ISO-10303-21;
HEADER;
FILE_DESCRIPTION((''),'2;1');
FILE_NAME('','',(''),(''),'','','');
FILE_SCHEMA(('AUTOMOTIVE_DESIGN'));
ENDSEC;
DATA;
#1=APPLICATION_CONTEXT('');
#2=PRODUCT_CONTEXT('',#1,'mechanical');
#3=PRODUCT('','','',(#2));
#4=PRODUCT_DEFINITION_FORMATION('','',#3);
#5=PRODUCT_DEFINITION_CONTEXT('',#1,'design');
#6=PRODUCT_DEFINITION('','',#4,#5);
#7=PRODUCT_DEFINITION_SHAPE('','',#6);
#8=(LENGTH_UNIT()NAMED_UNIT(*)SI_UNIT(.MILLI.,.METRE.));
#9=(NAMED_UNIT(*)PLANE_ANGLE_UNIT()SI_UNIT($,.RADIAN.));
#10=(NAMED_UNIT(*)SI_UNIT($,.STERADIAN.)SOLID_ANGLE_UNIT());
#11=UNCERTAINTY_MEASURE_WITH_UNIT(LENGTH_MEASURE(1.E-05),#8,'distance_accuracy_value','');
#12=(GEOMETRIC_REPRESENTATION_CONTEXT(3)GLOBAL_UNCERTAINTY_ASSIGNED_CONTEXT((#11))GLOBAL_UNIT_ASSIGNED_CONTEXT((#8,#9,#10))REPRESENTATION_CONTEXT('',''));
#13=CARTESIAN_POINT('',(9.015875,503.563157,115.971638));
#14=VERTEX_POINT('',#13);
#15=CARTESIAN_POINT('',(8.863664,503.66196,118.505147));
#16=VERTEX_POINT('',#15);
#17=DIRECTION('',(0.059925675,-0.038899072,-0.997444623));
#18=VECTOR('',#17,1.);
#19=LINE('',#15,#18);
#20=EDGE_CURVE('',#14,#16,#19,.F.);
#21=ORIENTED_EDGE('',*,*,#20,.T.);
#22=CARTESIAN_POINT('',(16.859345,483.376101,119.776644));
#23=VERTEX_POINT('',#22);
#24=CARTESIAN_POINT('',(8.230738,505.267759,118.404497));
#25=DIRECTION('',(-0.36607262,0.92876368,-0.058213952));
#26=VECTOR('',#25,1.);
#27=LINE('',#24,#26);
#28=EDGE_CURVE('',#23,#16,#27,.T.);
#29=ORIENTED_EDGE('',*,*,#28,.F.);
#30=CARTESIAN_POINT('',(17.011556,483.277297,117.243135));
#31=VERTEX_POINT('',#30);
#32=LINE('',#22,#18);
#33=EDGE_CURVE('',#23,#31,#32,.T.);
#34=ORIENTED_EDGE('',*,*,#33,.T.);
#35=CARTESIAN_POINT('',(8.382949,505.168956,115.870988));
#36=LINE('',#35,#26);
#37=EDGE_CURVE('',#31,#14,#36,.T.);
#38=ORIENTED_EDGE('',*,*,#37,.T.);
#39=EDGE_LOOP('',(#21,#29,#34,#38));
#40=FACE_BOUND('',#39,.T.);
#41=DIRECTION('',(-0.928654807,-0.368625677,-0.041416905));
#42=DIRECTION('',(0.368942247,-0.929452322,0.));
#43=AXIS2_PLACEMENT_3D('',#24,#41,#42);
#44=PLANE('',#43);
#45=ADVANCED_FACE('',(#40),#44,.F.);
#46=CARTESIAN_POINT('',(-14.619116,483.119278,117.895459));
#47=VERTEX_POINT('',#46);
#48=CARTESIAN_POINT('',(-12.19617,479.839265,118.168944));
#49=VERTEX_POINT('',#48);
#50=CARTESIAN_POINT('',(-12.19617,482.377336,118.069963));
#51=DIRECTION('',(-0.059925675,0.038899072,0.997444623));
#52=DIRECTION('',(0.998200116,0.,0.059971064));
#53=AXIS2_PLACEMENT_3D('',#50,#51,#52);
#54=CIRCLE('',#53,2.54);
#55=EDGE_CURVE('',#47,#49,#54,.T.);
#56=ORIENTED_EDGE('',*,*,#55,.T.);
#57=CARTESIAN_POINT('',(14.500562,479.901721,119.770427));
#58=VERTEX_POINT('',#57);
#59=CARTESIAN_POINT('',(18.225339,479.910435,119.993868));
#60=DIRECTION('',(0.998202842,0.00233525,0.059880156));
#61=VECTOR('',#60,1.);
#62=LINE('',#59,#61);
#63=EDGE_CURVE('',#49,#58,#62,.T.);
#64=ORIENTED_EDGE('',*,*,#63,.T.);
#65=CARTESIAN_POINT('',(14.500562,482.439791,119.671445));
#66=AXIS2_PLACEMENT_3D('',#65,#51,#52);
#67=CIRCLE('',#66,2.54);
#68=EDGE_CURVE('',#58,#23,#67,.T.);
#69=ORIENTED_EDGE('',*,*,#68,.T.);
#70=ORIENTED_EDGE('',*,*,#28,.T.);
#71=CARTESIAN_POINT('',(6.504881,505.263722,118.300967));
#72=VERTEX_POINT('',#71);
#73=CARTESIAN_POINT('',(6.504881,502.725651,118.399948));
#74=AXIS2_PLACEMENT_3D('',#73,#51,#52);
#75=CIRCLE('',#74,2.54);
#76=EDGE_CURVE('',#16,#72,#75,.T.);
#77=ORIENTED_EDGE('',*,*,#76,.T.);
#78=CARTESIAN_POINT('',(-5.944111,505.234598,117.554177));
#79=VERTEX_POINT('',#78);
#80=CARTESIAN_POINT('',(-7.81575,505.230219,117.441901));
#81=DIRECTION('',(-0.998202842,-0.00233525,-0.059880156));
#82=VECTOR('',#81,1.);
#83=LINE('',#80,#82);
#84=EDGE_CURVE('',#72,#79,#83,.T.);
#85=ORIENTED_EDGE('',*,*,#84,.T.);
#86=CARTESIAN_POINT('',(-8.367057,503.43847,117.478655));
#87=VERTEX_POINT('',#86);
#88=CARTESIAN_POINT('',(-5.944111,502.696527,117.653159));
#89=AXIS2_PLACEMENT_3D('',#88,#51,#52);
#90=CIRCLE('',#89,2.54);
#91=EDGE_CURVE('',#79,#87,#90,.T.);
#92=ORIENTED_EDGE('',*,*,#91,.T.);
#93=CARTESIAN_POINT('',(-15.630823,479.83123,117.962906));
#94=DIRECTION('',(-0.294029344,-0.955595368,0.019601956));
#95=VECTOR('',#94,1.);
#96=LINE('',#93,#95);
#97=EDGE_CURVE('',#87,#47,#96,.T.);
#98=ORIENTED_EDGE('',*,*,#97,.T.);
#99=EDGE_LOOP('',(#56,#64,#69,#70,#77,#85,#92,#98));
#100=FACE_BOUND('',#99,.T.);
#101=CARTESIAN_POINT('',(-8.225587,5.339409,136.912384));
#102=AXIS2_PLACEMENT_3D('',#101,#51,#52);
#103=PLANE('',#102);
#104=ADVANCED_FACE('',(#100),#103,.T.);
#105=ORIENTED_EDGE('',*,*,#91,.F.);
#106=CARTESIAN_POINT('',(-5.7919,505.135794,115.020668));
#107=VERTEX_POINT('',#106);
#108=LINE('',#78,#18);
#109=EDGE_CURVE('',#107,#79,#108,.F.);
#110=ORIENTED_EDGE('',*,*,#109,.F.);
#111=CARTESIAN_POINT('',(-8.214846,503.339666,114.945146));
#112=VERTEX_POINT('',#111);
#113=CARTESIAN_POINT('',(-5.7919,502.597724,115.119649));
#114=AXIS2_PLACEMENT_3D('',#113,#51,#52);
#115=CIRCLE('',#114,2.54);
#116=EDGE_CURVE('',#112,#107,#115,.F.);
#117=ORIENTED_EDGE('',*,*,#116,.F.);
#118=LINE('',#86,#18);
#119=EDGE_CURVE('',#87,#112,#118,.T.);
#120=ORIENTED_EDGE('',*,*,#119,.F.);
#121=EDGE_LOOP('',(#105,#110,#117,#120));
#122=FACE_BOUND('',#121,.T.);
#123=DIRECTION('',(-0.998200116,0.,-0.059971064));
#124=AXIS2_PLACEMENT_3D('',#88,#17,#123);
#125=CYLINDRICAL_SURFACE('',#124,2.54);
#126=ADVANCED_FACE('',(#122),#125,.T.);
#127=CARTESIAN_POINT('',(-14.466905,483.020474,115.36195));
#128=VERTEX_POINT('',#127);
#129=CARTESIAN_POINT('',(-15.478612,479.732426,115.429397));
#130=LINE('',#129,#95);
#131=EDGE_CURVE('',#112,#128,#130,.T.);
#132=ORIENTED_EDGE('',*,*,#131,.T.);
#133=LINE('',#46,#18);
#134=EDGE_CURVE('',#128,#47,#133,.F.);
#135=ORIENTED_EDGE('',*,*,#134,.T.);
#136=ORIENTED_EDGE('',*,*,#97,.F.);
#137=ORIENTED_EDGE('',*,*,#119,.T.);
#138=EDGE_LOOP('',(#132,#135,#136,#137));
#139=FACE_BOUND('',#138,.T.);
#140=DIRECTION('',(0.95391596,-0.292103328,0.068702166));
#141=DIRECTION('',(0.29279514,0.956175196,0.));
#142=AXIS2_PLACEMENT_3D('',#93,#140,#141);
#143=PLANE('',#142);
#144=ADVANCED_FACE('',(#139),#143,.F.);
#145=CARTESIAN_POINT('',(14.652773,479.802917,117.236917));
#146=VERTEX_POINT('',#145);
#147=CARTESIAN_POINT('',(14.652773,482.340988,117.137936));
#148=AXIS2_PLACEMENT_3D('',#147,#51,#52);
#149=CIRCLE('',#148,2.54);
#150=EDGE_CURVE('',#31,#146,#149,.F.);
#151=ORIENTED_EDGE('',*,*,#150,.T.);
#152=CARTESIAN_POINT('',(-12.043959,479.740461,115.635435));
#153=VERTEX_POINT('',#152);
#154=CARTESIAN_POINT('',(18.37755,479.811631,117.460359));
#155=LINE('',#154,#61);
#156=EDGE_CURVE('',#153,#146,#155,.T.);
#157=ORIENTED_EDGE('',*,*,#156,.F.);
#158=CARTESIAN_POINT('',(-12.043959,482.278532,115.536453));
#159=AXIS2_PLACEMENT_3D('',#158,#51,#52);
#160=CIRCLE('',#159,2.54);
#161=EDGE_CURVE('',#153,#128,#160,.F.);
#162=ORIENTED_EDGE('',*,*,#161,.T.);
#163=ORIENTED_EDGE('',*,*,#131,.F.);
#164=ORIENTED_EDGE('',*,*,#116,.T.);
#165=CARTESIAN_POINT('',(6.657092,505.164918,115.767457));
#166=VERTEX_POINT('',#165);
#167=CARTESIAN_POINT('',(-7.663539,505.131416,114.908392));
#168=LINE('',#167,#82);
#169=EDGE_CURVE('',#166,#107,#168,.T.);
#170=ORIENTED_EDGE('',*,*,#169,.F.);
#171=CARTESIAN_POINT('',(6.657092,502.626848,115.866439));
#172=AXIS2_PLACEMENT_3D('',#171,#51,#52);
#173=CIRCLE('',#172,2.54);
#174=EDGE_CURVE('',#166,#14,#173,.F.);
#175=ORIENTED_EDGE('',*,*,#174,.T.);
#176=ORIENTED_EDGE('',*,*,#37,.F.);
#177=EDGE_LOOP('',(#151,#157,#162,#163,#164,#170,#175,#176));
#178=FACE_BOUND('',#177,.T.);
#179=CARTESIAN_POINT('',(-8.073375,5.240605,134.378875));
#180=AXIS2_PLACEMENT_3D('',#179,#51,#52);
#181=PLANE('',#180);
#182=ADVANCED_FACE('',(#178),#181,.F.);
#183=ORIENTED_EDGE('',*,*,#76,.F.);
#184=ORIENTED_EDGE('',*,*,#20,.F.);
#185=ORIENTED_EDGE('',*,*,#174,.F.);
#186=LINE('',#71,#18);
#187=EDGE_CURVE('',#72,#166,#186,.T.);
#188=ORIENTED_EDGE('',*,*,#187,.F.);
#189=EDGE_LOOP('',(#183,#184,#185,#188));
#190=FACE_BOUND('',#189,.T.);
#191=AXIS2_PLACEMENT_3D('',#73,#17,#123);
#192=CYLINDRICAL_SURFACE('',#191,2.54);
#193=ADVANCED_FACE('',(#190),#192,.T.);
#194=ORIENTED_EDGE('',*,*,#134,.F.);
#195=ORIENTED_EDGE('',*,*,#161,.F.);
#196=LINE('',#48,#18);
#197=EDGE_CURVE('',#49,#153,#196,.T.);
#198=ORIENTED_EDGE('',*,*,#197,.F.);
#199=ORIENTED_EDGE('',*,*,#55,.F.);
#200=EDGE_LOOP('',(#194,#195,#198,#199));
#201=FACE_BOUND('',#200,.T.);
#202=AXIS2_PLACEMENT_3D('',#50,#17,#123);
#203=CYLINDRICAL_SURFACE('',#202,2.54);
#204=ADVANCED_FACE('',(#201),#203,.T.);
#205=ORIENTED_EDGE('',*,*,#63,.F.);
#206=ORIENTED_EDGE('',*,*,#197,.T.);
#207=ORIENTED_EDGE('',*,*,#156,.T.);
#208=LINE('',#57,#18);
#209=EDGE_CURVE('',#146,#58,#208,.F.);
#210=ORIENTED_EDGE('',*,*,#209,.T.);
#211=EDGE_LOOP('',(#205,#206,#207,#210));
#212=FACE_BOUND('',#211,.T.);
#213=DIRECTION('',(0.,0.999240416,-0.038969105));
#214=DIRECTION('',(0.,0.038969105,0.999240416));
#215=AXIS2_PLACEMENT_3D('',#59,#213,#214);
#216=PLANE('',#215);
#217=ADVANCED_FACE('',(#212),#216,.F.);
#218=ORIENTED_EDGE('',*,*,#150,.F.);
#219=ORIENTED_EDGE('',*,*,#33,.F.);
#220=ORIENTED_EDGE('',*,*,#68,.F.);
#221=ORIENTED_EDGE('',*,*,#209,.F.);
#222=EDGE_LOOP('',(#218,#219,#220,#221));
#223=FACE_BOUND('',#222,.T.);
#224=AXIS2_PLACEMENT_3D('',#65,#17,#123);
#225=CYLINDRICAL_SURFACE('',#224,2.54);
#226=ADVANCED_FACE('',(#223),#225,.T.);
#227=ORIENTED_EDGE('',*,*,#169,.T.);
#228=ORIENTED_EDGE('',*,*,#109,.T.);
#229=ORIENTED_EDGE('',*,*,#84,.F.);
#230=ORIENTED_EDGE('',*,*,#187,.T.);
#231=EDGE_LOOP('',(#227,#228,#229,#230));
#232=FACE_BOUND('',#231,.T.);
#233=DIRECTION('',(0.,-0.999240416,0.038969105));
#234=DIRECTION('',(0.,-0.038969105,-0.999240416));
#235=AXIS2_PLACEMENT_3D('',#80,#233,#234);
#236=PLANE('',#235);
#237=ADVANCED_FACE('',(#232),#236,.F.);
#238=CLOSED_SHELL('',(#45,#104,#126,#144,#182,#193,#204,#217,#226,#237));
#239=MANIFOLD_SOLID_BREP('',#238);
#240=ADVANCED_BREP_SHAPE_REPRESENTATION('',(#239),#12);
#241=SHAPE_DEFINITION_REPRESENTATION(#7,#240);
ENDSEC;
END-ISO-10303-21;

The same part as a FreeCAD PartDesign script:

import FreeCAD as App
import Part
import Sketcher
Q = App.Units.Quantity


def edges_at(feature, points):
    """Names of the edges that pass closest to the given points."""
    edges = feature.Shape.Edges
    near = lambda p: min(range(len(edges)), key=lambda i: edges[i].distToShape(Part.Vertex(*p))[0])
    return sorted({f"Edge{near(p) + 1}" for p in points})

doc = App.newDocument("Part")
body = doc.addObject("PartDesign::Body", "Body")

# Sketch on an angled plane
sketch1 = body.newObject("Sketcher::SketchObject", "Sketch")
sketch1.Placement = App.Placement(App.Vector(-8.073375, 5.240605, 134.378875), App.Rotation(App.Vector(0.998202842, 0.00233525, 0.059880156), App.Vector(0, 0.999240416, -0.038969106), App.Vector(-0.059925675, 0.038899072, 0.997444623), "ZXY"))
sketch1.addGeometry(Part.LineSegment(App.Vector(26, 475, 0), App.Vector(16, 500, 0)), False)
sketch1.addGeometry(Part.LineSegment(App.Vector(16, 500, 0), App.Vector(0, 500, 0)), False)
sketch1.addGeometry(Part.LineSegment(App.Vector(0, 500, 0), App.Vector(-7, 475, 0)), False)
sketch1.addGeometry(Part.LineSegment(App.Vector(-7, 475, 0), App.Vector(26, 475, 0)), False)
sketch1.addConstraint(Sketcher.Constraint("Coincident", 0, 2, 1, 1))
sketch1.addConstraint(Sketcher.Constraint("Coincident", 1, 2, 2, 1))
sketch1.addConstraint(Sketcher.Constraint("Coincident", 2, 2, 3, 1))
sketch1.addConstraint(Sketcher.Constraint("Coincident", 3, 2, 0, 1))
sketch1.addConstraint(Sketcher.Constraint("Horizontal", 1))
sketch1.addConstraint(Sketcher.Constraint("Horizontal", 3))
sketch1.addConstraint(Sketcher.Constraint("DistanceY", 2, 2, 1, 2, Q("1 in")))
sketch1.addConstraint(Sketcher.Constraint("Distance", 2, 26.579231))
sketch1.addConstraint(Sketcher.Constraint("DistanceX", 1, 2, 1, 1, 16.075378))
sketch1.addConstraint(Sketcher.Constraint("DistanceX", 3, 1, 3, 2, 33.917117))
sketch1.addConstraint(Sketcher.Constraint("DistanceY", -1, 1, 0, 2, 500.269849))
sketch1.addConstraint(Sketcher.Constraint("DistanceX", 2, 2, -1, 1, 7.418569))
pad1 = body.newObject("PartDesign::Pad", "Pad")
pad1.Profile = sketch1
pad1.Length = Q("0.1 in")
doc.recompute()

fillet = body.newObject("PartDesign::Fillet", "Fillet")
fillet.Base = (pad1, edges_at(pad1, [
    (8.307, 505.218, 117.138),
    (18.301, 479.861, 118.727),
    (-15.555, 479.782, 116.696),
    (-7.74, 505.181, 116.175),
]))
fillet.Radius = Q("0.1 in")

doc.recompute()
